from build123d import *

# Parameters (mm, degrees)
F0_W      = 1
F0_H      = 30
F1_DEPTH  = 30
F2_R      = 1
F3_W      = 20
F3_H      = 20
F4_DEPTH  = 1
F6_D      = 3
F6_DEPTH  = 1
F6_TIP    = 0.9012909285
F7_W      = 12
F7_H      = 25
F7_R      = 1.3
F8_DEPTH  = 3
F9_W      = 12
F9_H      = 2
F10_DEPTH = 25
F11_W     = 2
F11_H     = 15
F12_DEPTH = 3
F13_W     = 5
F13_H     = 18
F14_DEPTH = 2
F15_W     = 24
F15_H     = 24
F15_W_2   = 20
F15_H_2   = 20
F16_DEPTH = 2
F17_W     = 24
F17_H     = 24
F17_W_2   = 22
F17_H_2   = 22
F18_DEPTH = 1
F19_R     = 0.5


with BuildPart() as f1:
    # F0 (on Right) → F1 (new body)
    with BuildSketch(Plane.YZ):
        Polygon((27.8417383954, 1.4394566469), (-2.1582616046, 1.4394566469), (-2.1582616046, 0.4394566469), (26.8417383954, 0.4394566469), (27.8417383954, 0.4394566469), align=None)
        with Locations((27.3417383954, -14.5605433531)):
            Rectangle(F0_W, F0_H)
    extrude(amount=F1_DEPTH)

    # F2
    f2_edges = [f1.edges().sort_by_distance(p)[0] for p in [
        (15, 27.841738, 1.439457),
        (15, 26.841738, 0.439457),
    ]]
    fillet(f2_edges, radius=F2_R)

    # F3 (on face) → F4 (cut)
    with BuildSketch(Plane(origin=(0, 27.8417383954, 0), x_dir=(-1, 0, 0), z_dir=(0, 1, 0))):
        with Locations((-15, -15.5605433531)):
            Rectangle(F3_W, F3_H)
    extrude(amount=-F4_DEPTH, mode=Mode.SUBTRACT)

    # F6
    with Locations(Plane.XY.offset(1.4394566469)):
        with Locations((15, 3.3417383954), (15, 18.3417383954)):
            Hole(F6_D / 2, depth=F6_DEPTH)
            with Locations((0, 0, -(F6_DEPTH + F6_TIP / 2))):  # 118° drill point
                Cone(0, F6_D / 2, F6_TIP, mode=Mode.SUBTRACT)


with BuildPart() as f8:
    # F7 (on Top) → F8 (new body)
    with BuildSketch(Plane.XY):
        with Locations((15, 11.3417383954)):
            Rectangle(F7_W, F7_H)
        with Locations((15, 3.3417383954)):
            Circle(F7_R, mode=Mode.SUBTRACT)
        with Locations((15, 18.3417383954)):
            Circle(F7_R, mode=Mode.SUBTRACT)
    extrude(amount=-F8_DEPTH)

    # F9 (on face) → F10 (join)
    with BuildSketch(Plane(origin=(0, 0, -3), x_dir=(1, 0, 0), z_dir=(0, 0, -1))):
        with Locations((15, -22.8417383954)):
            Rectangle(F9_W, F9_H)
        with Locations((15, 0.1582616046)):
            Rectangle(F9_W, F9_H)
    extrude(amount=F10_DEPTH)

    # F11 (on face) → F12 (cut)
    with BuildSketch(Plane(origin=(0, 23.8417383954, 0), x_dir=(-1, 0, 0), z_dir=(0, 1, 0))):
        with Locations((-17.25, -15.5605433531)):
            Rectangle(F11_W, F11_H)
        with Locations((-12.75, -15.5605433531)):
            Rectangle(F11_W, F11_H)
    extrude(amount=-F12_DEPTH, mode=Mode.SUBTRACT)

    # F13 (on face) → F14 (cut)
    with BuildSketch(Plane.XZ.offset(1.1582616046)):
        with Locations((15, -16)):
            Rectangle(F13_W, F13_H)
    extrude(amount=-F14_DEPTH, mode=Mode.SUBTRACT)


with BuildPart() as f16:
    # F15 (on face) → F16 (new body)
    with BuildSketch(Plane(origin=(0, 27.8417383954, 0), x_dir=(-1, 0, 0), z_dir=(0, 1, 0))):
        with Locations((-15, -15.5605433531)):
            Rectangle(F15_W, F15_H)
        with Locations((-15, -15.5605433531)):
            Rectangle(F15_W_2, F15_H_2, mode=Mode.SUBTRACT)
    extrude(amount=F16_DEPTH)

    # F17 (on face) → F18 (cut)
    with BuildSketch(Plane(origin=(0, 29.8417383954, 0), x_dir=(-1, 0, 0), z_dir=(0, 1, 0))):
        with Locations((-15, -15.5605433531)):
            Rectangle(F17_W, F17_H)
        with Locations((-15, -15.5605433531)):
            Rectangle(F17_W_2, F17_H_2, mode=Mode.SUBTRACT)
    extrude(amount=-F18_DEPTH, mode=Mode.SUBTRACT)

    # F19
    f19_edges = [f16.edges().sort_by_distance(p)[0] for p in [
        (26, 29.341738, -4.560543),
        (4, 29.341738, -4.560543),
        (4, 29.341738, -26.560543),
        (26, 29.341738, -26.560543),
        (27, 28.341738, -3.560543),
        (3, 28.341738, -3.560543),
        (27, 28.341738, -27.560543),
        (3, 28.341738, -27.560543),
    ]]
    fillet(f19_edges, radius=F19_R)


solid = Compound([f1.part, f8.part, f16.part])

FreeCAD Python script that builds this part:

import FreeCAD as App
import Part
import Sketcher
Q = App.Units.Quantity


def edges_at(feature, points):
    """Names of the edges that pass closest to the given points."""
    edges = feature.Shape.Edges
    near = lambda p: min(range(len(edges)), key=lambda i: edges[i].distToShape(Part.Vertex(*p))[0])
    return sorted({f"Edge{near(p) + 1}" for p in points})

doc = App.newDocument("Part")
body = doc.addObject("PartDesign::Body", "Body")

sketch1 = body.newObject("Sketcher::SketchObject", "Sketch")
sketch1.AttachmentSupport = (doc.getObject("YZ_Plane"), [""])
sketch1.MapMode = "FlatFace"
sketch1.addGeometry([
    Part.LineSegment(App.Vector(27.841738, 1.439457, 0), App.Vector(-2.158262, 1.439457, 0)),
    Part.LineSegment(App.Vector(-2.158262, 1.439457, 0), App.Vector(-2.158262, 0.439457, 0)),
    Part.LineSegment(App.Vector(-2.158262, 0.439457, 0), App.Vector(26.841738, 0.439457, 0)),
    Part.LineSegment(App.Vector(26.841738, 0.439457, 0), App.Vector(26.841738, -29.560543, 0)),
    Part.LineSegment(App.Vector(26.841738, -29.560543, 0), App.Vector(27.841738, -29.560543, 0)),
    Part.LineSegment(App.Vector(27.841738, -29.560543, 0), App.Vector(27.841738, 1.439457, 0)),
], False)
sketch1.addConstraint([
    Sketcher.Constraint("Coincident", 0, 2, 1, 1),
    Sketcher.Constraint("Coincident", 1, 2, 2, 1),
    Sketcher.Constraint("Coincident", 2, 2, 3, 1),
    Sketcher.Constraint("Coincident", 3, 2, 4, 1),
    Sketcher.Constraint("Coincident", 4, 2, 5, 1),
    Sketcher.Constraint("Coincident", 5, 2, 0, 1),
    Sketcher.Constraint("Horizontal", 0),
    Sketcher.Constraint("Vertical", 1),
    Sketcher.Constraint("Horizontal", 2),
    Sketcher.Constraint("Vertical", 3),
    Sketcher.Constraint("Horizontal", 4),
    Sketcher.Constraint("Vertical", 5),
    Sketcher.Constraint("Equal", 4, 1),
    Sketcher.Constraint("Equal", 0, 3),
    Sketcher.Constraint("DistanceX", 0, 2, 0, 1, Q("30 mm")),
    Sketcher.Constraint("DistanceX", 2, 1, 2, 2, Q("29 mm")),
    Sketcher.Constraint("DistanceX", 0, 2, -1, 1, Q("2.158262 mm")),
    Sketcher.Constraint("DistanceY", -1, 1, 0, 2, Q("1.439457 mm")),
])
pad1 = body.newObject("PartDesign::Pad", "Pad")
pad1.Profile = sketch1
pad1.Length = 30
doc.recompute()

fillet = body.newObject("PartDesign::Fillet", "Fillet")
fillet.Base = (pad1, edges_at(pad1, [(15, 27.842, 1.439), (15, 26.842, 0.439)]))
fillet.Radius = 1

sketch2 = body.newObject("Sketcher::SketchObject", "Sketch001")
sketch2.AttachmentSupport = (doc.getObject("XZ_Plane"), [""])
sketch2.MapMode = "FlatFace"
sketch2.AttachmentOffset = App.Placement(App.Vector(0, 0, -27.841738), App.Rotation())
sketch2.addGeometry([
    Part.LineSegment(App.Vector(25, -5.560543, 0), App.Vector(25, -25.560543, 0)),
    Part.LineSegment(App.Vector(25, -25.560543, 0), App.Vector(5, -25.560543, 0)),
    Part.LineSegment(App.Vector(5, -25.560543, 0), App.Vector(5, -5.560543, 0)),
    Part.LineSegment(App.Vector(5, -5.560543, 0), App.Vector(25, -5.560543, 0)),
], False)
sketch2.addConstraint([
    Sketcher.Constraint("Coincident", 0, 2, 1, 1),
    Sketcher.Constraint("Coincident", 1, 2, 2, 1),
    Sketcher.Constraint("Coincident", 2, 2, 3, 1),
    Sketcher.Constraint("Coincident", 3, 2, 0, 1),
    Sketcher.Constraint("Vertical", 0),
    Sketcher.Constraint("Horizontal", 1),
    Sketcher.Constraint("Vertical", 2),
    Sketcher.Constraint("Horizontal", 3),
    Sketcher.Constraint("Equal", 3, 0),
    Sketcher.Constraint("DistanceX", 1, 2, 1, 1, Q("20 mm")),
    Sketcher.Constraint("DistanceX", -1, 1, 0, 2, Q("25 mm")),
    Sketcher.Constraint("DistanceY", 0, 2, -1, 1, Q("25.560543 mm")),
])
pocket1 = body.newObject("PartDesign::Pocket", "Pocket")
pocket1.Profile = sketch2
pocket1.Length = 1
pocket1.Reversed = True

sketch3 = body.newObject("Sketcher::SketchObject", "Sketch002")
sketch3.AttachmentSupport = (doc.getObject("XY_Plane"), [""])
sketch3.MapMode = "FlatFace"
sketch3.AttachmentOffset = App.Placement(App.Vector(0, 0, 1.439457), App.Rotation())
sketch3.addGeometry([
    Part.Circle(App.Vector(15, 3.341738, 0), App.Vector(0, 0, 1), 1.5),
    Part.Circle(App.Vector(15, 18.341738, 0), App.Vector(0, 0, 1), 1.5),
], False)
sketch3.addConstraint([
    Sketcher.Constraint("Equal", 0, 1),
    Sketcher.Constraint("Vertical", 0, 3, 1, 3),
    Sketcher.Constraint("Diameter", 0, Q("3 mm")),
    Sketcher.Constraint("DistanceX", -1, 1, 0, 3, Q("15 mm")),
    Sketcher.Constraint("DistanceY", 0, 3, 1, 3, Q("15 mm")),
    Sketcher.Constraint("DistanceY", -1, 1, 0, 3, Q("3.341738 mm")),
])
doc.recompute()
hole = body.newObject("PartDesign::Hole", "Hole")
hole.Profile = sketch3
hole.ThreadType = "None"
hole.Diameter = 3
hole.DepthType = "Dimension"
hole.Depth = 1
hole.DrillPoint = "Angled"
hole.DrillPointAngle = 118
body2 = doc.addObject("PartDesign::Body", "Body001")

sketch4 = body2.newObject("Sketcher::SketchObject", "Sketch003")
sketch4.AttachmentSupport = (doc.getObject("XY_Plane001"), [""])
sketch4.MapMode = "FlatFace"
sketch4.addGeometry([
    Part.LineSegment(App.Vector(9, 23.841738, 0), App.Vector(9, -1.158262, 0)),
    Part.LineSegment(App.Vector(9, -1.158262, 0), App.Vector(21, -1.158262, 0)),
    Part.LineSegment(App.Vector(21, -1.158262, 0), App.Vector(21, 23.841738, 0)),
    Part.LineSegment(App.Vector(21, 23.841738, 0), App.Vector(9, 23.841738, 0)),
    Part.Circle(App.Vector(15, 3.341738, 0), App.Vector(0, 0, 1), 1.3),
    Part.Circle(App.Vector(15, 18.341738, 0), App.Vector(0, 0, 1), 1.3),
], False)
sketch4.addConstraint([
    Sketcher.Constraint("Coincident", 0, 2, 1, 1),
    Sketcher.Constraint("Coincident", 1, 2, 2, 1),
    Sketcher.Constraint("Coincident", 2, 2, 3, 1),
    Sketcher.Constraint("Coincident", 3, 2, 0, 1),
    Sketcher.Constraint("Vertical", 0),
    Sketcher.Constraint("Horizontal", 1),
    Sketcher.Constraint("Vertical", 2),
    Sketcher.Constraint("Horizontal", 3),
    Sketcher.Constraint("Equal", 4, 5),
    Sketcher.Constraint("Vertical", 4, 3, 5, 3),
    Sketcher.Constraint("Diameter", 4, Q("2.6 mm")),
    Sketcher.Constraint("DistanceX", 1, 1, 1, 2, Q("12 mm")),
    Sketcher.Constraint("DistanceY", 0, 2, 0, 1, Q("25 mm")),
    Sketcher.Constraint("DistanceX", -1, 1, 4, 3, Q("15 mm")),
    Sketcher.Constraint("DistanceX", -1, 1, 0, 2, Q("9 mm")),
    Sketcher.Constraint("DistanceY", 4, 3, 5, 3, Q("15 mm")),
    Sketcher.Constraint("DistanceY", 0, 2, 4, 3, Q("4.5 mm")),
    Sketcher.Constraint("DistanceY", -1, 1, 4, 3, Q("3.341738 mm")),
])
pad2 = body2.newObject("PartDesign::Pad", "Pad001")
pad2.Profile = sketch4
pad2.Length = 3
pad2.Reversed = True

sketch5 = body2.newObject("Sketcher::SketchObject", "Sketch004")
sketch5.AttachmentSupport = (doc.getObject("XY_Plane001"), [""])
sketch5.MapMode = "FlatFace"
sketch5.AttachmentOffset = App.Placement(App.Vector(0, 0, -3), App.Rotation())
sketch5.addGeometry([
    Part.LineSegment(App.Vector(9, 21.841738, 0), App.Vector(9, 23.841738, 0)),
    Part.LineSegment(App.Vector(9, 23.841738, 0), App.Vector(21, 23.841738, 0)),
    Part.LineSegment(App.Vector(21, 23.841738, 0), App.Vector(21, 21.841738, 0)),
    Part.LineSegment(App.Vector(21, 21.841738, 0), App.Vector(9, 21.841738, 0)),
    Part.LineSegment(App.Vector(9, -1.158262, 0), App.Vector(9, 0.841738, 0)),
    Part.LineSegment(App.Vector(9, 0.841738, 0), App.Vector(21, 0.841738, 0)),
    Part.LineSegment(App.Vector(21, 0.841738, 0), App.Vector(21, -1.158262, 0)),
    Part.LineSegment(App.Vector(21, -1.158262, 0), App.Vector(9, -1.158262, 0)),
], False)
sketch5.addConstraint([
    Sketcher.Constraint("Coincident", 0, 2, 1, 1),
    Sketcher.Constraint("Coincident", 1, 2, 2, 1),
    Sketcher.Constraint("Coincident", 2, 2, 3, 1),
    Sketcher.Constraint("Coincident", 3, 2, 0, 1),
    Sketcher.Constraint("Coincident", 4, 2, 5, 1),
    Sketcher.Constraint("Coincident", 5, 2, 6, 1),
    Sketcher.Constraint("Coincident", 6, 2, 7, 1),
    Sketcher.Constraint("Coincident", 7, 2, 4, 1),
    Sketcher.Constraint("Vertical", 0),
    Sketcher.Constraint("Horizontal", 1),
    Sketcher.Constraint("Vertical", 2),
    Sketcher.Constraint("Horizontal", 3),
    Sketcher.Constraint("Vertical", 4),
    Sketcher.Constraint("Horizontal", 5),
    Sketcher.Constraint("Vertical", 6),
    Sketcher.Constraint("Horizontal", 7),
    Sketcher.Constraint("Vertical", 3, 2, 4, 2),
    Sketcher.Constraint("Vertical", 2, 2, 5, 2),
    Sketcher.Constraint("Equal", 2, 4),
    Sketcher.Constraint("DistanceX", 1, 1, 1, 2, Q("12 mm")),
    Sketcher.Constraint("DistanceY", 0, 1, 0, 2, Q("2 mm")),
    Sketcher.Constraint("DistanceX", -1, 1, 0, 2, Q("9 mm")),
    Sketcher.Constraint("DistanceY", 4, 2, 3, 2, Q("21 mm")),
    Sketcher.Constraint("DistanceY", -1, 1, 0, 2, Q("23.841738 mm")),
])
pad3 = body2.newObject("PartDesign::Pad", "Pad002")
pad3.Profile = sketch5
pad3.Length = 25
pad3.Reversed = True

sketch6 = body2.newObject("Sketcher::SketchObject", "Sketch005")
sketch6.AttachmentSupport = (doc.getObject("XZ_Plane001"), [""])
sketch6.MapMode = "FlatFace"
sketch6.AttachmentOffset = App.Placement(App.Vector(0, 0, -23.841738), App.Rotation())
sketch6.addGeometry([
    Part.LineSegment(App.Vector(18.25, -8.060543, 0), App.Vector(18.25, -23.060543, 0)),
    Part.LineSegment(App.Vector(18.25, -23.060543, 0), App.Vector(16.25, -23.060543, 0)),
    Part.LineSegment(App.Vector(16.25, -23.060543, 0), App.Vector(16.25, -8.060543, 0)),
    Part.LineSegment(App.Vector(16.25, -8.060543, 0), App.Vector(18.25, -8.060543, 0)),
    Part.LineSegment(App.Vector(13.75, -8.060543, 0), App.Vector(13.75, -23.060543, 0)),
    Part.LineSegment(App.Vector(13.75, -23.060543, 0), App.Vector(11.75, -23.060543, 0)),
    Part.LineSegment(App.Vector(11.75, -23.060543, 0), App.Vector(11.75, -8.060543, 0)),
    Part.LineSegment(App.Vector(11.75, -8.060543, 0), App.Vector(13.75, -8.060543, 0)),
], False)
sketch6.addConstraint([
    Sketcher.Constraint("Coincident", 0, 2, 1, 1),
    Sketcher.Constraint("Coincident", 1, 2, 2, 1),
    Sketcher.Constraint("Coincident", 2, 2, 3, 1),
    Sketcher.Constraint("Coincident", 3, 2, 0, 1),
    Sketcher.Constraint("Coincident", 4, 2, 5, 1),
    Sketcher.Constraint("Coincident", 5, 2, 6, 1),
    Sketcher.Constraint("Coincident", 6, 2, 7, 1),
    Sketcher.Constraint("Coincident", 7, 2, 4, 1),
    Sketcher.Constraint("Vertical", 0),
    Sketcher.Constraint("Horizontal", 1),
    Sketcher.Constraint("Vertical", 2),
    Sketcher.Constraint("Horizontal", 3),
    Sketcher.Constraint("Vertical", 4),
    Sketcher.Constraint("Horizontal", 5),
    Sketcher.Constraint("Vertical", 6),
    Sketcher.Constraint("Horizontal", 7),
    Sketcher.Constraint("Horizontal", 1, 2, 4, 2),
    Sketcher.Constraint("Horizontal", 3, 2, 6, 2),
    Sketcher.Constraint("Equal", 3, 5),
    Sketcher.Constraint("DistanceX", 1, 2, 1, 1, Q("2 mm")),
    Sketcher.Constraint("DistanceY", 0, 2, 0, 1, Q("15 mm")),
    Sketcher.Constraint("DistanceX", 4, 2, 1, 2, Q("2.5 mm")),
    Sketcher.Constraint("DistanceX", -1, 1, 0, 2, Q("18.25 mm")),
    Sketcher.Constraint("DistanceY", 0, 2, -1, 1, Q("23.060543 mm")),
])
pocket2 = body2.newObject("PartDesign::Pocket", "Pocket001")
pocket2.Profile = sketch6
pocket2.Length = 3
pocket2.Reversed = True

sketch7 = body2.newObject("Sketcher::SketchObject", "Sketch006")
sketch7.AttachmentSupport = (doc.getObject("XZ_Plane001"), [""])
sketch7.MapMode = "FlatFace"
sketch7.AttachmentOffset = App.Placement(App.Vector(0, 0, 1.158262), App.Rotation())
sketch7.addGeometry([
    Part.LineSegment(App.Vector(12.5, -7, 0), App.Vector(12.5, -25, 0)),
    Part.LineSegment(App.Vector(12.5, -25, 0), App.Vector(17.5, -25, 0)),
    Part.LineSegment(App.Vector(17.5, -25, 0), App.Vector(17.5, -7, 0)),
    Part.LineSegment(App.Vector(17.5, -7, 0), App.Vector(12.5, -7, 0)),
], False)
sketch7.addConstraint([
    Sketcher.Constraint("Coincident", 0, 2, 1, 1),
    Sketcher.Constraint("Coincident", 1, 2, 2, 1),
    Sketcher.Constraint("Coincident", 2, 2, 3, 1),
    Sketcher.Constraint("Coincident", 3, 2, 0, 1),
    Sketcher.Constraint("Vertical", 0),
    Sketcher.Constraint("Horizontal", 1),
    Sketcher.Constraint("Vertical", 2),
    Sketcher.Constraint("Horizontal", 3),
    Sketcher.Constraint("DistanceX", 1, 1, 1, 2, Q("5 mm")),
    Sketcher.Constraint("DistanceY", 0, 2, 0, 1, Q("18 mm")),
    Sketcher.Constraint("DistanceY", 0, 2, -1, 1, Q("25 mm")),
    Sketcher.Constraint("DistanceX", -1, 1, 0, 2, Q("12.5 mm")),
])
pocket3 = body2.newObject("PartDesign::Pocket", "Pocket002")
pocket3.Profile = sketch7
pocket3.Length = 2
body3 = doc.addObject("PartDesign::Body", "Body002")

sketch8 = body3.newObject("Sketcher::SketchObject", "Sketch007")
sketch8.AttachmentSupport = (doc.getObject("XZ_Plane002"), [""])
sketch8.MapMode = "FlatFace"
sketch8.AttachmentOffset = App.Placement(App.Vector(0, 0, -27.841738), App.Rotation())
sketch8.addGeometry([
    Part.LineSegment(App.Vector(27, -3.560543, 0), App.Vector(27, -27.560543, 0)),
    Part.LineSegment(App.Vector(27, -27.560543, 0), App.Vector(3, -27.560543, 0)),
    Part.LineSegment(App.Vector(3, -27.560543, 0), App.Vector(3, -3.560543, 0)),
    Part.LineSegment(App.Vector(3, -3.560543, 0), App.Vector(27, -3.560543, 0)),
    Part.LineSegment(App.Vector(5, -25.560543, 0), App.Vector(25, -25.560543, 0)),
    Part.LineSegment(App.Vector(25, -25.560543, 0), App.Vector(25, -5.560543, 0)),
    Part.LineSegment(App.Vector(25, -5.560543, 0), App.Vector(5, -5.560543, 0)),
    Part.LineSegment(App.Vector(5, -5.560543, 0), App.Vector(5, -25.560543, 0)),
], False)
sketch8.addConstraint([
    Sketcher.Constraint("Coincident", 0, 2, 1, 1),
    Sketcher.Constraint("Coincident", 1, 2, 2, 1),
    Sketcher.Constraint("Coincident", 2, 2, 3, 1),
    Sketcher.Constraint("Coincident", 3, 2, 0, 1),
    Sketcher.Constraint("Coincident", 4, 2, 5, 1),
    Sketcher.Constraint("Coincident", 5, 2, 6, 1),
    Sketcher.Constraint("Coincident", 6, 2, 7, 1),
    Sketcher.Constraint("Coincident", 7, 2, 4, 1),
    Sketcher.Constraint("Vertical", 0),
    Sketcher.Constraint("Horizontal", 1),
    Sketcher.Constraint("Vertical", 2),
    Sketcher.Constraint("Horizontal", 3),
    Sketcher.Constraint("Horizontal", 4),
    Sketcher.Constraint("Vertical", 5),
    Sketcher.Constraint("Horizontal", 6),
    Sketcher.Constraint("Vertical", 7),
    Sketcher.Constraint("Equal", 3, 0),
    Sketcher.Constraint("Equal", 6, 5),
    Sketcher.Constraint("DistanceX", 1, 2, 1, 1, Q("24 mm")),
    Sketcher.Constraint("DistanceX", 4, 1, 4, 2, Q("20 mm")),
    Sketcher.Constraint("DistanceX", -1, 1, 0, 2, Q("27 mm")),
    Sketcher.Constraint("DistanceX", -1, 1, 4, 2, Q("25 mm")),
    Sketcher.Constraint("DistanceY", 0, 2, 4, 2, Q("2 mm")),
    Sketcher.Constraint("DistanceY", 0, 2, -1, 1, Q("27.560543 mm")),
])
pad4 = body3.newObject("PartDesign::Pad", "Pad003")
pad4.Profile = sketch8
pad4.Length = 2
pad4.Reversed = True

sketch9 = body3.newObject("Sketcher::SketchObject", "Sketch008")
sketch9.AttachmentSupport = (doc.getObject("XZ_Plane002"), [""])
sketch9.MapMode = "FlatFace"
sketch9.AttachmentOffset = App.Placement(App.Vector(0, 0, -29.841738), App.Rotation())
sketch9.addGeometry([
    Part.LineSegment(App.Vector(27, -3.560543, 0), App.Vector(27, -27.560543, 0)),
    Part.LineSegment(App.Vector(27, -27.560543, 0), App.Vector(3, -27.560543, 0)),
    Part.LineSegment(App.Vector(3, -27.560543, 0), App.Vector(3, -3.560543, 0)),
    Part.LineSegment(App.Vector(3, -3.560543, 0), App.Vector(27, -3.560543, 0)),
    Part.LineSegment(App.Vector(4, -26.560543, 0), App.Vector(26, -26.560543, 0)),
    Part.LineSegment(App.Vector(26, -26.560543, 0), App.Vector(26, -4.560543, 0)),
    Part.LineSegment(App.Vector(26, -4.560543, 0), App.Vector(4, -4.560543, 0)),
    Part.LineSegment(App.Vector(4, -4.560543, 0), App.Vector(4, -26.560543, 0)),
], False)
sketch9.addConstraint([
    Sketcher.Constraint("Coincident", 0, 2, 1, 1),
    Sketcher.Constraint("Coincident", 1, 2, 2, 1),
    Sketcher.Constraint("Coincident", 2, 2, 3, 1),
    Sketcher.Constraint("Coincident", 3, 2, 0, 1),
    Sketcher.Constraint("Coincident", 4, 2, 5, 1),
    Sketcher.Constraint("Coincident", 5, 2, 6, 1),
    Sketcher.Constraint("Coincident", 6, 2, 7, 1),
    Sketcher.Constraint("Coincident", 7, 2, 4, 1),
    Sketcher.Constraint("Vertical", 0),
    Sketcher.Constraint("Horizontal", 1),
    Sketcher.Constraint("Vertical", 2),
    Sketcher.Constraint("Horizontal", 3),
    Sketcher.Constraint("Horizontal", 4),
    Sketcher.Constraint("Vertical", 5),
    Sketcher.Constraint("Horizontal", 6),
    Sketcher.Constraint("Vertical", 7),
    Sketcher.Constraint("Equal", 3, 0),
    Sketcher.Constraint("Equal", 6, 5),
    Sketcher.Constraint("DistanceX", 1, 2, 1, 1, Q("24 mm")),
    Sketcher.Constraint("DistanceX", 4, 1, 4, 2, Q("22 mm")),
    Sketcher.Constraint("DistanceX", -1, 1, 0, 2, Q("27 mm")),
    Sketcher.Constraint("DistanceX", -1, 1, 4, 2, Q("26 mm")),
    Sketcher.Constraint("DistanceY", 0, 2, 4, 2, Q("1 mm")),
    Sketcher.Constraint("DistanceY", 0, 2, -1, 1, Q("27.560543 mm")),
])
pocket4 = body3.newObject("PartDesign::Pocket", "Pocket003")
pocket4.Profile = sketch9
pocket4.Length = 1
pocket4.Reversed = True
doc.recompute()

fillet2 = body3.newObject("PartDesign::Fillet", "Fillet001")
fillet2.Base = (pocket4, edges_at(pocket4, [
    (26, 29.342, -4.561),
    (4, 29.342, -4.561),
    (4, 29.342, -26.561),
    (26, 29.342, -26.561),
    (27, 28.342, -3.561),
    (3, 28.342, -3.561),
    (27, 28.342, -27.561),
    (3, 28.342, -27.561),
]))
fillet2.Radius = 0.5

doc.recompute()
